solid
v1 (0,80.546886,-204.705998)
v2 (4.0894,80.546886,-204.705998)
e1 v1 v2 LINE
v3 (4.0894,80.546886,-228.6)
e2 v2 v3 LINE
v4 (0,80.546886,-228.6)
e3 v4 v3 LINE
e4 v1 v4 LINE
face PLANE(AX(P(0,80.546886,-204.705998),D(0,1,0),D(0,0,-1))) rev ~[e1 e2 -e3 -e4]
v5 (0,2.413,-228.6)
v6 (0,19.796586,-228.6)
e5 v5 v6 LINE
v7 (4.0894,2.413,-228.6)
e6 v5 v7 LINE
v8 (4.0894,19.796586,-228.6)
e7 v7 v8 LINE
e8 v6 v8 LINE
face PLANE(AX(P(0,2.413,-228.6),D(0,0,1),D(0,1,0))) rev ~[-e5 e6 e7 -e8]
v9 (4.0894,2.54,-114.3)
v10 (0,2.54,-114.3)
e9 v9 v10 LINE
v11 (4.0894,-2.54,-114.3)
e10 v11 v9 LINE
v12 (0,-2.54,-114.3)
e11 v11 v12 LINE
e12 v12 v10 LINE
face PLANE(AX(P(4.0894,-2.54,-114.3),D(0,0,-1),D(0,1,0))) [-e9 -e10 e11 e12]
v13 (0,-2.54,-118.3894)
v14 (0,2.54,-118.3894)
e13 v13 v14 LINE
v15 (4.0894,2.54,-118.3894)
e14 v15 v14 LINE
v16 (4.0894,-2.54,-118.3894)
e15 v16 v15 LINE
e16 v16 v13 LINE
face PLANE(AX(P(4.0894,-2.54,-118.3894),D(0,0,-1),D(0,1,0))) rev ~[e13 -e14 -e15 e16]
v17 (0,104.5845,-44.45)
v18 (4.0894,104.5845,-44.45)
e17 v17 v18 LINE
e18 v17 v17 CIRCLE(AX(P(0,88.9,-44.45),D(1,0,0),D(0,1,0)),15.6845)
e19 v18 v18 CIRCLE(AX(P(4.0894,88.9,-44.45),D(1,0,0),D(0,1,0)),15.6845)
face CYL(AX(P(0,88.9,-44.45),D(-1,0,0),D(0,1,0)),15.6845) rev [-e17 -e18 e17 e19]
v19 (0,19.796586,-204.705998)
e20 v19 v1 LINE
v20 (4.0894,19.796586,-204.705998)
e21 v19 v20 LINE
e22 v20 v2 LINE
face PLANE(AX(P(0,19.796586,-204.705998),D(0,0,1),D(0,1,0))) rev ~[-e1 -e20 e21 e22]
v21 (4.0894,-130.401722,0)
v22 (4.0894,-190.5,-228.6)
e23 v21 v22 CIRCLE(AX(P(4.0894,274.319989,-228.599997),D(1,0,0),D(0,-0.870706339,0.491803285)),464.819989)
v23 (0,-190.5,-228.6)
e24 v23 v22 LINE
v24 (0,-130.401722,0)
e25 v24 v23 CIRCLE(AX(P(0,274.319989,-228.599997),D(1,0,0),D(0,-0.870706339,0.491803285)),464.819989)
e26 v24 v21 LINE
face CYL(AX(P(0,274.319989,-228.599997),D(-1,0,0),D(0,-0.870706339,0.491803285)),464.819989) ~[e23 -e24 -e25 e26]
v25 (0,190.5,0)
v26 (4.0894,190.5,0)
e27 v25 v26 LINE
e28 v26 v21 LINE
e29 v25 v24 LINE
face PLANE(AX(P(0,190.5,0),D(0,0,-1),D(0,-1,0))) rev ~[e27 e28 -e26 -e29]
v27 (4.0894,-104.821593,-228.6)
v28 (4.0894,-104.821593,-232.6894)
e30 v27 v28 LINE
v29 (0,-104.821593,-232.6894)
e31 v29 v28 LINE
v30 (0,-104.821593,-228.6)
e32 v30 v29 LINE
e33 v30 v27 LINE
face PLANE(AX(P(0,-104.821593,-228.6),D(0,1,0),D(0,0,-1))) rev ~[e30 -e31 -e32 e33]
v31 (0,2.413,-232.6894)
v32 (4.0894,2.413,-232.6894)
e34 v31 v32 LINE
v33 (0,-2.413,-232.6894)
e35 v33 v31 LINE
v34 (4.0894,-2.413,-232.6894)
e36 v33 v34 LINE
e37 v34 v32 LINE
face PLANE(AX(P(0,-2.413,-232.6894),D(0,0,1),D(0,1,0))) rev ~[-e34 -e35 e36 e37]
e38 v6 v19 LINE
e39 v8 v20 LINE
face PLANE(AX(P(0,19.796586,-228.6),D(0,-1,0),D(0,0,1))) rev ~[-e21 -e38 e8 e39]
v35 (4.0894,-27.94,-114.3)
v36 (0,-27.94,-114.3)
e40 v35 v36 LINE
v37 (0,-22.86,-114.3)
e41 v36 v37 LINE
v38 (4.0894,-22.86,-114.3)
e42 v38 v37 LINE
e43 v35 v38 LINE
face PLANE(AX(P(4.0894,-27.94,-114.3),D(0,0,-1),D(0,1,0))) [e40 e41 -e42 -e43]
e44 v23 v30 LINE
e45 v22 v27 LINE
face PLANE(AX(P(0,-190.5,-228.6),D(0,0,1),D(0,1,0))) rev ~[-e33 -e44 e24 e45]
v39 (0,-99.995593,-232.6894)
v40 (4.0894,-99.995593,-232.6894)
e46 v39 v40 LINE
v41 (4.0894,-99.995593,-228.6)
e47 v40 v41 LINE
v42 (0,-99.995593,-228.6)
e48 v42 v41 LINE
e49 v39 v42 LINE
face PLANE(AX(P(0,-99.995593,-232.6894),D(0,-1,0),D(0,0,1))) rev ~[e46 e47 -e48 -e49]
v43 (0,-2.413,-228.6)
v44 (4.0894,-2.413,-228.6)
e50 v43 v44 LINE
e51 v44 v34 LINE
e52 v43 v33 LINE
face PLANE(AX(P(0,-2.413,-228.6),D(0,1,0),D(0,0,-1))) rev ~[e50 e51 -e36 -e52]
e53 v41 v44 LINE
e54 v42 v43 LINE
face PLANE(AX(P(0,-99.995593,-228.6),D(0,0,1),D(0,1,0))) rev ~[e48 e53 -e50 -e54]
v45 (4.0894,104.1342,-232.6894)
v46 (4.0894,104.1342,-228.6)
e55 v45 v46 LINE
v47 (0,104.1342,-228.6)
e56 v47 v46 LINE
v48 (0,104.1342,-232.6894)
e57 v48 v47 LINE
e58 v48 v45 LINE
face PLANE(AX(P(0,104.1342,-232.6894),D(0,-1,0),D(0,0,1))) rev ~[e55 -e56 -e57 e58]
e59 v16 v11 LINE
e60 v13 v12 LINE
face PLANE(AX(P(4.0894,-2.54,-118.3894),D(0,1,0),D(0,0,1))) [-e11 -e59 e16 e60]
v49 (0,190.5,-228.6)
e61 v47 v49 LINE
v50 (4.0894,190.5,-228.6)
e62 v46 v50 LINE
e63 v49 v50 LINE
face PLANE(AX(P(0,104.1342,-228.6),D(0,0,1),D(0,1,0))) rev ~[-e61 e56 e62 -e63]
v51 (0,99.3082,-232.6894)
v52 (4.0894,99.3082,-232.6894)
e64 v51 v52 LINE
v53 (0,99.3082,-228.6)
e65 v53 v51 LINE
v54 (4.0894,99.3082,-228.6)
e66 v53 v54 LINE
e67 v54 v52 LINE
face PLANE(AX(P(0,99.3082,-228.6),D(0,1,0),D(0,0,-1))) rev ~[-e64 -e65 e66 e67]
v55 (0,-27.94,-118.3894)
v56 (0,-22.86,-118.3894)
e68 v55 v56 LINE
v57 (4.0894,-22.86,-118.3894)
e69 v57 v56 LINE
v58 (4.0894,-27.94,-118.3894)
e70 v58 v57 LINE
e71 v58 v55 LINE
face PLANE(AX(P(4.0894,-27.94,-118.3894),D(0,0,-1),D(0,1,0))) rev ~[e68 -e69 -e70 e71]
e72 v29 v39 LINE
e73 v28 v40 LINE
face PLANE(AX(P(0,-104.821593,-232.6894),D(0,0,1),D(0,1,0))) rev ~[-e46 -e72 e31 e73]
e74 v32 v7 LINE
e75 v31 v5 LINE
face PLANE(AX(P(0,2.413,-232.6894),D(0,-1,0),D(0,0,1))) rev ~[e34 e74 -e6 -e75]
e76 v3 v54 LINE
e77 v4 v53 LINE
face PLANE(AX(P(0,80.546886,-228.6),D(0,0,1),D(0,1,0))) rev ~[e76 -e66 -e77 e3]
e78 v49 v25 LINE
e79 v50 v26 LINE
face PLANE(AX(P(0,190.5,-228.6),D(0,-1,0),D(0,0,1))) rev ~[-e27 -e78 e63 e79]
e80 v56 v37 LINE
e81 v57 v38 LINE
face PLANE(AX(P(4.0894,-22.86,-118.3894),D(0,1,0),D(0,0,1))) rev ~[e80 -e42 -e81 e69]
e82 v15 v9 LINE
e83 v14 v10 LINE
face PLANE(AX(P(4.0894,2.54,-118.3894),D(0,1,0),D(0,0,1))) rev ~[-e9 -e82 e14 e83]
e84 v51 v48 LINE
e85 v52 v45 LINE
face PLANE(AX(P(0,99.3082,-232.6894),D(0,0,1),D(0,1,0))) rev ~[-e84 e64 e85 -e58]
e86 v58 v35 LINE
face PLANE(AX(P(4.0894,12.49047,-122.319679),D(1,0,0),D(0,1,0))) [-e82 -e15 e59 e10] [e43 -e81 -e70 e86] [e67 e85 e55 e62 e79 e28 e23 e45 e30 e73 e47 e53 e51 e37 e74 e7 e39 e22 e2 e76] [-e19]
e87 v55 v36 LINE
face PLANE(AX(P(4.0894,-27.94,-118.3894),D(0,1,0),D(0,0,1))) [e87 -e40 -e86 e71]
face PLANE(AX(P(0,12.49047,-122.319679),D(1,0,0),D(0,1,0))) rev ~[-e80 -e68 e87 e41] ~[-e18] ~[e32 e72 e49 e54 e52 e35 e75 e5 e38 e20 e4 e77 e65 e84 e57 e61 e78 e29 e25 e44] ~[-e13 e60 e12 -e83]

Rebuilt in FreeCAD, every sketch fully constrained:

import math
import FreeCAD as App
import Part
import Sketcher

V = App.Vector
Q = App.Units.Quantity


def add_polygon(sketch, points):
    """Adds a closed chain of lines whose ends are joined by coincident constraints."""
    first, n = sketch.GeometryCount, len(points)
    for a, b in zip(points, points[1:] + points[:1]):
        sketch.addGeometry(Part.LineSegment(App.Vector(*a, 0), App.Vector(*b, 0)), False)
    for i in range(n):
        sketch.addConstraint(Sketcher.Constraint("Coincident", first + i, 2, first + (i + 1) % n, 1))

doc = App.newDocument("Part")
body = doc.addObject("PartDesign::Body", "Body")

sketch1 = body.newObject("Sketcher::SketchObject", "Sketch")
sketch1.AttachmentSupport = (doc.getObject("YZ_Plane"), [""])
sketch1.MapMode = "FlatFace"
sketch1.addGeometry(Part.LineSegment(V(190.5, -228.6, 0), V(190.5, 0, 0)), False)
sketch1.addGeometry(Part.LineSegment(V(190.5, 0, 0), V(-130.401722, 0, 0)), False)
sketch1.addGeometry(Part.ArcOfCircle(Part.Circle(V(274.319989, -228.599997, 0), V(0, 0, 1), 464.819989), math.radians(150.540825), math.radians(180)), False)
sketch1.addGeometry(Part.LineSegment(V(-190.5, -228.6, 0), V(-104.821593, -228.6, 0)), False)
sketch1.addGeometry(Part.LineSegment(V(-104.821593, -228.6, 0), V(-104.821593, -232.6894, 0)), False)
sketch1.addGeometry(Part.LineSegment(V(-104.821593, -232.6894, 0), V(-99.995593, -232.6894, 0)), False)
sketch1.addGeometry(Part.LineSegment(V(-99.995593, -232.6894, 0), V(-99.995593, -228.6, 0)), False)
sketch1.addGeometry(Part.LineSegment(V(-99.995593, -228.6, 0), V(-2.413, -228.6, 0)), False)
sketch1.addGeometry(Part.LineSegment(V(-2.413, -228.6, 0), V(-2.413, -232.6894, 0)), False)
sketch1.addGeometry(Part.LineSegment(V(-2.413, -232.6894, 0), V(2.413, -232.6894, 0)), False)
sketch1.addGeometry(Part.LineSegment(V(2.413, -232.6894, 0), V(2.413, -228.6, 0)), False)
sketch1.addGeometry(Part.LineSegment(V(2.413, -228.6, 0), V(19.796586, -228.6, 0)), False)
sketch1.addGeometry(Part.LineSegment(V(19.796586, -228.6, 0), V(19.796586, -204.705998, 0)), False)
sketch1.addGeometry(Part.LineSegment(V(19.796586, -204.705998, 0), V(80.546886, -204.705998, 0)), False)
sketch1.addGeometry(Part.LineSegment(V(80.546886, -204.705998, 0), V(80.546886, -228.6, 0)), False)
sketch1.addGeometry(Part.LineSegment(V(80.546886, -228.6, 0), V(99.3082, -228.6, 0)), False)
sketch1.addGeometry(Part.LineSegment(V(99.3082, -228.6, 0), V(99.3082, -232.6894, 0)), False)
sketch1.addGeometry(Part.LineSegment(V(99.3082, -232.6894, 0), V(104.1342, -232.6894, 0)), False)
sketch1.addGeometry(Part.LineSegment(V(104.1342, -232.6894, 0), V(104.1342, -228.6, 0)), False)
sketch1.addGeometry(Part.LineSegment(V(104.1342, -228.6, 0), V(190.5, -228.6, 0)), False)
sketch1.addGeometry(Part.Circle(V(88.9, -44.45, 0), V(0, 0, 1), 15.6845), False)
sketch1.addConstraint(Sketcher.Constraint("Coincident", 0, 2, 1, 1))
sketch1.addConstraint(Sketcher.Constraint("Coincident", 1, 2, 2, 1))
sketch1.addConstraint(Sketcher.Constraint("Coincident", 2, 2, 3, 1))
sketch1.addConstraint(Sketcher.Constraint("Coincident", 3, 2, 4, 1))
sketch1.addConstraint(Sketcher.Constraint("Coincident", 4, 2, 5, 1))
sketch1.addConstraint(Sketcher.Constraint("Coincident", 5, 2, 6, 1))
sketch1.addConstraint(Sketcher.Constraint("Coincident", 6, 2, 7, 1))
sketch1.addConstraint(Sketcher.Constraint("Coincident", 7, 2, 8, 1))
sketch1.addConstraint(Sketcher.Constraint("Coincident", 8, 2, 9, 1))
sketch1.addConstraint(Sketcher.Constraint("Coincident", 9, 2, 10, 1))
sketch1.addConstraint(Sketcher.Constraint("Coincident", 10, 2, 11, 1))
sketch1.addConstraint(Sketcher.Constraint("Coincident", 11, 2, 12, 1))
sketch1.addConstraint(Sketcher.Constraint("Coincident", 12, 2, 13, 1))
sketch1.addConstraint(Sketcher.Constraint("Coincident", 13, 2, 14, 1))
sketch1.addConstraint(Sketcher.Constraint("Coincident", 14, 2, 15, 1))
sketch1.addConstraint(Sketcher.Constraint("Coincident", 15, 2, 16, 1))
sketch1.addConstraint(Sketcher.Constraint("Coincident", 16, 2, 17, 1))
sketch1.addConstraint(Sketcher.Constraint("Coincident", 17, 2, 18, 1))
sketch1.addConstraint(Sketcher.Constraint("Coincident", 18, 2, 19, 1))
sketch1.addConstraint(Sketcher.Constraint("Coincident", 19, 2, 0, 1))
sketch1.addConstraint(Sketcher.Constraint("Vertical", 0))
sketch1.addConstraint(Sketcher.Constraint("Horizontal", 1))
sketch1.addConstraint(Sketcher.Constraint("Horizontal", 3))
sketch1.addConstraint(Sketcher.Constraint("Vertical", 4))
sketch1.addConstraint(Sketcher.Constraint("Horizontal", 5))
sketch1.addConstraint(Sketcher.Constraint("Vertical", 6))
sketch1.addConstraint(Sketcher.Constraint("Horizontal", 7))
sketch1.addConstraint(Sketcher.Constraint("Vertical", 8))
sketch1.addConstraint(Sketcher.Constraint("Horizontal", 9))
sketch1.addConstraint(Sketcher.Constraint("Vertical", 10))
sketch1.addConstraint(Sketcher.Constraint("Horizontal", 11))
sketch1.addConstraint(Sketcher.Constraint("Vertical", 12))
sketch1.addConstraint(Sketcher.Constraint("Horizontal", 13))
sketch1.addConstraint(Sketcher.Constraint("Vertical", 14))
sketch1.addConstraint(Sketcher.Constraint("Horizontal", 15))
sketch1.addConstraint(Sketcher.Constraint("Vertical", 16))
sketch1.addConstraint(Sketcher.Constraint("Horizontal", 17))
sketch1.addConstraint(Sketcher.Constraint("Vertical", 18))
sketch1.addConstraint(Sketcher.Constraint("Horizontal", 19))
sketch1.addConstraint(Sketcher.Constraint("Symmetric", 7, 2, 10, 2, -2))
sketch1.addConstraint(Sketcher.Constraint("PointOnObject", 0, 2, -1))
sketch1.addConstraint(Sketcher.Constraint("Horizontal", 3, 2, 6, 2))
sketch1.addConstraint(Sketcher.Constraint("Horizontal", 5, 2, 8, 2))
sketch1.addConstraint(Sketcher.Constraint("Horizontal", 11, 2, 14, 2))
sketch1.addConstraint(Sketcher.Constraint("Horizontal", 9, 2, 16, 2))
sketch1.addConstraint(Sketcher.Constraint("Horizontal", 15, 2, 18, 2))
sketch1.addConstraint(Sketcher.Constraint("Equal", 5, 9))
sketch1.addConstraint(Sketcher.Constraint("Equal", 9, 17))
sketch1.addConstraint(Sketcher.Constraint("DistanceY", 0, 1, 0, 2, Q("9 in")))
sketch1.addConstraint(Sketcher.Constraint("Diameter", 20, Q("1.235 in")))
sketch1.addConstraint(Sketcher.Constraint("DistanceY", 2, 3, -1, 1, Q("8.9999999 in")))
sketch1.addConstraint(Sketcher.Constraint("DistanceX", 20, 3, 0, 2, Q("4 in")))
sketch1.addConstraint(Sketcher.Constraint("DistanceX", 2, 2, 20, 3, Q("11 in")))
sketch1.addConstraint(Sketcher.Constraint("DistanceX", 5, 1, 5, 2, Q("0.19 in")))
sketch1.addConstraint(Sketcher.Constraint("DistanceX", -1, 1, 20, 3, Q("3.5 in")))
sketch1.addConstraint(Sketcher.Constraint("DistanceY", 4, 2, 4, 1, Q("0.161 in")))
sketch1.addConstraint(Sketcher.Constraint("DistanceY", 20, 3, -1, 1, Q("1.75 in")))
sketch1.addConstraint(Sketcher.Constraint("Radius", 2, 464.819989))
sketch1.addConstraint(Sketcher.Constraint("DistanceX", 13, 1, 13, 2, 60.7503))
sketch1.addConstraint(Sketcher.Constraint("DistanceX", 19, 1, 19, 2, 86.3658))
sketch1.addConstraint(Sketcher.Constraint("DistanceY", 12, 2, -1, 1, 204.705998))
sketch1.addConstraint(Sketcher.Constraint("DistanceX", 3, 1, 3, 2, 85.678407))
sketch1.addConstraint(Sketcher.Constraint("DistanceX", 11, 1, 11, 2, 17.383586))
pad1 = body.newObject("PartDesign::Pad", "Pad")
pad1.Profile = sketch1
pad1.Length = Q("0.161 in")

sketch2 = body.newObject("Sketcher::SketchObject", "Sketch001")
sketch2.AttachmentSupport = (doc.getObject("YZ_Plane"), [""])
sketch2.MapMode = "FlatFace"
sketch2.AttachmentOffset = App.Placement(V(0, 0, 0.161 * 25.4), App.Rotation())
add_polygon(sketch2, [(-2.54, -114.3), (-2.54, -118.3894), (2.54, -118.3894), (2.54, -114.3)])
add_polygon(sketch2, [(-27.94, -114.3), (-27.94, -118.3894), (-22.86, -118.3894), (-22.86, -114.3)])
sketch2.addConstraint(Sketcher.Constraint("Vertical", 0))
sketch2.addConstraint(Sketcher.Constraint("Horizontal", 1))
sketch2.addConstraint(Sketcher.Constraint("Vertical", 2))
sketch2.addConstraint(Sketcher.Constraint("Horizontal", 3))
sketch2.addConstraint(Sketcher.Constraint("Vertical", 4))
sketch2.addConstraint(Sketcher.Constraint("Horizontal", 5))
sketch2.addConstraint(Sketcher.Constraint("Vertical", 6))
sketch2.addConstraint(Sketcher.Constraint("Horizontal", 7))
sketch2.addConstraint(Sketcher.Constraint("Horizontal", 1, 2, 4, 2))
sketch2.addConstraint(Sketcher.Constraint("Horizontal", 3, 2, 6, 2))
sketch2.addConstraint(Sketcher.Constraint("Equal", 3, 5))
sketch2.addConstraint(Sketcher.Constraint("DistanceX", 1, 1, 1, 2, Q("0.2 in")))
sketch2.addConstraint(Sketcher.Constraint("DistanceX", 4, 2, 0, 2, Q("1 in")))
sketch2.addConstraint(Sketcher.Constraint("DistanceX", 0, 2, -1, 1, Q("0.1 in")))
sketch2.addConstraint(Sketcher.Constraint("DistanceY", 2, 2, -1, 1, Q("4.5 in")))
sketch2.addConstraint(Sketcher.Constraint("DistanceY", 0, 2, 0, 1, Q("0.161 in")))
pocket1 = body.newObject("PartDesign::Pocket", "Pocket")
pocket1.Profile = sketch2
pocket1.Length = Q("1 in")

doc.recompute()
